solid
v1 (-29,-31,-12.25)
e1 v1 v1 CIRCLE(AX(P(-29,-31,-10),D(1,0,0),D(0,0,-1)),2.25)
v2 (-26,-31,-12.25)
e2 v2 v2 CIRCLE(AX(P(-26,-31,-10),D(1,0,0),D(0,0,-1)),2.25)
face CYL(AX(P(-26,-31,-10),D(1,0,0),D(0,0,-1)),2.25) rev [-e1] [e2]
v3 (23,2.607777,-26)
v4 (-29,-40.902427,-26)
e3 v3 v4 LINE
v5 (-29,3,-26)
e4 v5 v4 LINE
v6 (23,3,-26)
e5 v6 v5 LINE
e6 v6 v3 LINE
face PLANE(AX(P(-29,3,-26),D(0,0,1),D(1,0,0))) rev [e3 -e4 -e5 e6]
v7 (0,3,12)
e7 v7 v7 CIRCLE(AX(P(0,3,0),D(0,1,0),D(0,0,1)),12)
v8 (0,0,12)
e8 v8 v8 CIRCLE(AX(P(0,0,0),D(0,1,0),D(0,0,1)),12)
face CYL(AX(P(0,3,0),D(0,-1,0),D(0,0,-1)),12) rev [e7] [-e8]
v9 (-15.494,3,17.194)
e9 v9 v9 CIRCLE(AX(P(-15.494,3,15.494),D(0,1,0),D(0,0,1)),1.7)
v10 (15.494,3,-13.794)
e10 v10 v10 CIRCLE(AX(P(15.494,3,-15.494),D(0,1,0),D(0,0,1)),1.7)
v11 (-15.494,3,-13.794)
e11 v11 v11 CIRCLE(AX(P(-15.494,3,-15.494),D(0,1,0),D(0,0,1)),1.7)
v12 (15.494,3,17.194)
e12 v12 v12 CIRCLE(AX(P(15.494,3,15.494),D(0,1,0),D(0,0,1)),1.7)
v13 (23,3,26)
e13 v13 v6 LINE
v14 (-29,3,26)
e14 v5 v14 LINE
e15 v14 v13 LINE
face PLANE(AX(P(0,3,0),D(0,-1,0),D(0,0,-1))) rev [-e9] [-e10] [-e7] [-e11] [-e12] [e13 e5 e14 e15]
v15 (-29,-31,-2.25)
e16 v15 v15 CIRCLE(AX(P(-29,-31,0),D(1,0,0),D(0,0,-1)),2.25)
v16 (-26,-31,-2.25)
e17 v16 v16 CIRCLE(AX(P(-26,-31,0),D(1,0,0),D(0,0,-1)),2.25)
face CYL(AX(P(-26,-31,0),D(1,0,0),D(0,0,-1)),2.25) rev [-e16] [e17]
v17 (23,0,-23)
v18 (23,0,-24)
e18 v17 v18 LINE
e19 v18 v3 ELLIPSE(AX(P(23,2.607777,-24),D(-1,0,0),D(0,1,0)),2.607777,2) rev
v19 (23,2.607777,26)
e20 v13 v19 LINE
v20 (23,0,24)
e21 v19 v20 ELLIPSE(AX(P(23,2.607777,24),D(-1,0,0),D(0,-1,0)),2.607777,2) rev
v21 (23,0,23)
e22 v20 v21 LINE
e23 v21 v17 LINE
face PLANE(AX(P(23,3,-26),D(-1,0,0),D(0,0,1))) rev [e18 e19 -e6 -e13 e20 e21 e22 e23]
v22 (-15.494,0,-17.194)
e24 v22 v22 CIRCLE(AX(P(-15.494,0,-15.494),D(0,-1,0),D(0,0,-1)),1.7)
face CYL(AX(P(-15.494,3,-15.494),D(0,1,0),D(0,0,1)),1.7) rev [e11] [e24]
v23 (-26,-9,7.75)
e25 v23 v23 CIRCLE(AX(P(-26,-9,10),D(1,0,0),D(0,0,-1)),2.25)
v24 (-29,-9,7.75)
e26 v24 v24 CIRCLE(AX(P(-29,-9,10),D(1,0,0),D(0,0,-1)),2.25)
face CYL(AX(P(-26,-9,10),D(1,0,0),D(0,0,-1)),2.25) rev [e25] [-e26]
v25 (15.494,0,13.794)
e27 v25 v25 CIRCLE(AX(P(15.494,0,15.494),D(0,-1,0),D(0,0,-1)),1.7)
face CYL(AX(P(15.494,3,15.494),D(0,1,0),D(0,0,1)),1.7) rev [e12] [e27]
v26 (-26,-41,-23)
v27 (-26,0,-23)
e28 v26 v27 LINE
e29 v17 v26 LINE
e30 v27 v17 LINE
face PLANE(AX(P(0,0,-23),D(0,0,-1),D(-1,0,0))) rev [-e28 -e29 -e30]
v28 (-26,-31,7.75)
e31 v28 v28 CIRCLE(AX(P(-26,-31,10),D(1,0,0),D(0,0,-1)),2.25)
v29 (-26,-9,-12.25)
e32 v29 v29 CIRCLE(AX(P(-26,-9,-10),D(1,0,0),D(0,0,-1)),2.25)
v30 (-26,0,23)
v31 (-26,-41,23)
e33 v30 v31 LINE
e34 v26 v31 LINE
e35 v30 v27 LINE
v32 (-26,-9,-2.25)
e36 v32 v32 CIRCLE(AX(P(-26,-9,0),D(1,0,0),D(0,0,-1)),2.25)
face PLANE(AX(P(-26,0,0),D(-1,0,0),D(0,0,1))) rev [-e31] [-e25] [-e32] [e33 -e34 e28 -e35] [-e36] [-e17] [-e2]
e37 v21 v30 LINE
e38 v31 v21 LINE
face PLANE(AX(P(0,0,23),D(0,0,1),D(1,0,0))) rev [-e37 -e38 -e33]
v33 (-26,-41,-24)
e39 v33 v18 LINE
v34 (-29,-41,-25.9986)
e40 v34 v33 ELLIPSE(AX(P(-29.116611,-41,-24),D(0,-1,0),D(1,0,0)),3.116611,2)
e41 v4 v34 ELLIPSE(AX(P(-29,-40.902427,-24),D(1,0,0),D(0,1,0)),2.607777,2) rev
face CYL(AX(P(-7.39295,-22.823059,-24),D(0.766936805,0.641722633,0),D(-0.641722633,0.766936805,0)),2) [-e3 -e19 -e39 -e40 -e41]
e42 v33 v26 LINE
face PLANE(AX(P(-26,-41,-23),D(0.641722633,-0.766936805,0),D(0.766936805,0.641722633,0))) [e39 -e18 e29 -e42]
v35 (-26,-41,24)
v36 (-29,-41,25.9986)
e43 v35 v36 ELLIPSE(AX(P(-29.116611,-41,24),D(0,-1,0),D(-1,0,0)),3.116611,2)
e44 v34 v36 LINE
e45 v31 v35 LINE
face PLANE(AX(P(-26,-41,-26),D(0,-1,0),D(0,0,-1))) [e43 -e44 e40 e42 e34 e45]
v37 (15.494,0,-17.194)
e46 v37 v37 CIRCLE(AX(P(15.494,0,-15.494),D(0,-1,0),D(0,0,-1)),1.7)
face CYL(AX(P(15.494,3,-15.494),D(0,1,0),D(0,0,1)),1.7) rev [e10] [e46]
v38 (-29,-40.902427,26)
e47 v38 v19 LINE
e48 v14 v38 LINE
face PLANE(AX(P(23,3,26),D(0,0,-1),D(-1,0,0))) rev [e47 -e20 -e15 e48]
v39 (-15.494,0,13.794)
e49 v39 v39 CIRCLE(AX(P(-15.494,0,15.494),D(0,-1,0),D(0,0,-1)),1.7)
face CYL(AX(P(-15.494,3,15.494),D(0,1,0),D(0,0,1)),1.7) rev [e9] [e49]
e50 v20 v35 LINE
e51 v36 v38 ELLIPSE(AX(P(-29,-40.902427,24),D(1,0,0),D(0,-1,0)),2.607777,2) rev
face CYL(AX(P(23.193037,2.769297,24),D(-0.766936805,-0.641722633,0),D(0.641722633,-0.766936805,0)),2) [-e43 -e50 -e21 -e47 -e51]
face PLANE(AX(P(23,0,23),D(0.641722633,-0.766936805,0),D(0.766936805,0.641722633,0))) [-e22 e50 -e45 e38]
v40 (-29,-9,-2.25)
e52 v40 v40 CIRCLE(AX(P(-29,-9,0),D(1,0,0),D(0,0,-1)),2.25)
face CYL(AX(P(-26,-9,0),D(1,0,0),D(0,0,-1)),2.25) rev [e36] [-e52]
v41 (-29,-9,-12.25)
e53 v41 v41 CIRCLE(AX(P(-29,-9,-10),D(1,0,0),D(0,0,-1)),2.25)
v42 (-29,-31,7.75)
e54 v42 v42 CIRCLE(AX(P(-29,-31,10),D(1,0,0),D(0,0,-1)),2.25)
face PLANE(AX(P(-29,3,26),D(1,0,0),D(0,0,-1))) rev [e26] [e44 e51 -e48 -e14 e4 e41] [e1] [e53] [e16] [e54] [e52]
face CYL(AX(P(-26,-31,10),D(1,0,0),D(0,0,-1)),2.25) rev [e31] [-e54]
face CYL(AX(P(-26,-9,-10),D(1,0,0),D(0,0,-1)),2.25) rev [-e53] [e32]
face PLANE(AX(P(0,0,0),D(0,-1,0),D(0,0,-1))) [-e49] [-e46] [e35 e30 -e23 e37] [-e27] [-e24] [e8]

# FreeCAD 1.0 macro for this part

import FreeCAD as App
import Part
import Sketcher

V = App.Vector


def edges_at(feature, points):
    """Names of the edges that pass closest to the given points."""
    edges = feature.Shape.Edges
    near = lambda p: min(range(len(edges)), key=lambda i: edges[i].distToShape(Part.Vertex(*p))[0])
    return sorted({f"Edge{near(p) + 1}" for p in points})


def add_polygon(sketch, points):
    """Adds a closed chain of lines whose ends are joined by coincident constraints."""
    first, n = sketch.GeometryCount, len(points)
    for a, b in zip(points, points[1:] + points[:1]):
        sketch.addGeometry(Part.LineSegment(App.Vector(*a, 0), App.Vector(*b, 0)), False)
    for i in range(n):
        sketch.addConstraint(Sketcher.Constraint("Coincident", first + i, 2, first + (i + 1) % n, 1))

doc = App.newDocument("Part")
body = doc.addObject("PartDesign::Body", "Body")

sketch1 = doc.addObject("Sketcher::SketchObject", "Sketch")
body.addObject(sketch1)
sketch1.AttachmentSupport = (doc.XZ_Plane, [""])
sketch1.MapMode = "FlatFace"
add_polygon(sketch1, [(-29, -26), (-29, 26), (23, 26), (23, -26)])
sketch1.addGeometry(Part.Circle(V(0, 0, 0), V(0, 0, 1), 12), False)
sketch1.addConstraint([
    Sketcher.Constraint("Vertical", 0),
    Sketcher.Constraint("Horizontal", 1),
    Sketcher.Constraint("Vertical", 2),
    Sketcher.Constraint("Horizontal", 3),
    Sketcher.Constraint("Coincident", 4, 3, -1, 1),
    Sketcher.Constraint("Equal", 3, 0),
    Sketcher.Constraint("Diameter", 4, 24.0),
    Sketcher.Constraint("DistanceX", 1, 1, 1, 2, 52.0),
    Sketcher.Constraint("DistanceX", 0, 2, -1, 1, 29.0),
    Sketcher.Constraint("DistanceY", -1, 1, 0, 2, 26.0),
])
pad1 = doc.addObject("PartDesign::Pad", "Pad")
body.addObject(pad1)
pad1.Profile = sketch1
pad1.Length = 3
pad1.Reversed = True

sketch2 = doc.addObject("Sketcher::SketchObject", "Sketch001")
body.addObject(sketch2)
sketch2.AttachmentSupport = (doc.YZ_Plane, [""])
sketch2.MapMode = "FlatFace"
sketch2.AttachmentOffset = App.Placement(V(0, 0, -29), App.Rotation())
add_polygon(sketch2, [(0, -26), (-41, -26), (-41, 26), (0, 26)])
sketch2.addConstraint([
    Sketcher.Constraint("Horizontal", 0),
    Sketcher.Constraint("Vertical", 1),
    Sketcher.Constraint("Horizontal", 2),
    Sketcher.Constraint("Vertical", 3),
    Sketcher.Constraint("Symmetric", 2, 2, 3, 2, -1, 1),
    Sketcher.Constraint("DistanceX", 0, 2, 0, 1, 41.0),
    Sketcher.Constraint("DistanceY", 1, 1, 1, 2, 52.0),
])
pad2 = doc.addObject("PartDesign::Pad", "Pad001")
body.addObject(pad2)
pad2.Profile = sketch2
pad2.Length = 3

sketch3 = doc.addObject("Sketcher::SketchObject", "Sketch002")
body.addObject(sketch3)
sketch3.AttachmentSupport = (doc.XZ_Plane, [""])
sketch3.MapMode = "FlatFace"
sketch3.AttachmentOffset = App.Placement(V(0, 0, -3), App.Rotation())
sketch3.addGeometry([
    Part.Circle(V(15.5, 15.5, 0), V(0, 0, 1), 1.7),
    Part.Circle(V(-15.5, 15.5, 0), V(0, 0, 1), 1.7),
    Part.Circle(V(-15.5, -15.5, 0), V(0, 0, 1), 1.7),
    Part.Circle(V(15.5, -15.5, 0), V(0, 0, 1), 1.7),
], False)
sketch3.addConstraint([
    Sketcher.Constraint("Equal", 0, 1),
    Sketcher.Constraint("Equal", 1, 2),
    Sketcher.Constraint("Equal", 2, 3),
    Sketcher.Constraint("Symmetric", 0, 3, 2, 3, -1, 1),
    Sketcher.Constraint("Symmetric", 1, 3, 3, 3, -1, 1),
    Sketcher.Constraint("Symmetric", 0, 3, 1, 3, -2),
    Sketcher.Constraint("Diameter", 0, 3.4),
    Sketcher.Constraint("DistanceX", -1, 1, 0, 3, 15.494),
    Sketcher.Constraint("DistanceY", -1, 1, 0, 3, 15.494),
])
doc.recompute()
hole = doc.addObject("PartDesign::Hole", "Hole")
body.addObject(hole)
hole.Profile = sketch3
hole.ThreadType = "None"
hole.Diameter = 3.4
hole.DepthType = "ThroughAll"
hole.Reversed = True

sketch4 = doc.addObject("Sketcher::SketchObject", "Sketch003")
body.addObject(sketch4)
sketch4.AttachmentSupport = (doc.YZ_Plane, [""])
sketch4.MapMode = "FlatFace"
sketch4.AttachmentOffset = App.Placement(V(0, 0, -26), App.Rotation())
sketch4.addGeometry([
    Part.Circle(V(-9, 10, 0), V(0, 0, 1), 2.2),
    Part.Circle(V(-9, -10, 0), V(0, 0, 1), 2.2),
    Part.Circle(V(-31, -10, 0), V(0, 0, 1), 2.2),
    Part.Circle(V(-31, 10, 0), V(0, 0, 1), 2.2),
    Part.Circle(V(-9, 0, 0), V(0, 0, 1), 2.2),
    Part.Circle(V(-31, 0, 0), V(0, 0, 1), 2.2),
], False)
sketch4.addConstraint([
    Sketcher.Constraint("Equal", 0, 1),
    Sketcher.Constraint("Equal", 1, 2),
    Sketcher.Constraint("Equal", 2, 3),
    Sketcher.Constraint("Equal", 3, 4),
    Sketcher.Constraint("Equal", 4, 5),
    Sketcher.Constraint("Symmetric", 0, 3, 1, 3, -1),
    Sketcher.Constraint("Symmetric", 2, 3, 3, 3, -1),
    Sketcher.Constraint("PointOnObject", 4, 3, -1),
    Sketcher.Constraint("PointOnObject", 5, 3, -1),
    Sketcher.Constraint("Horizontal", 1, 3, 2, 3),
    Sketcher.Constraint("Vertical", 1, 3, 4, 3),
    Sketcher.Constraint("Vertical", 3, 3, 5, 3),
    Sketcher.Constraint("Diameter", 0, 4.5),
    Sketcher.Constraint("DistanceX", 0, 3, -1, 1, 9.0),
    Sketcher.Constraint("DistanceY", -1, 1, 0, 3, 10.0),
    Sketcher.Constraint("DistanceX", 2, 3, -1, 1, 31.0),
])
doc.recompute()
hole2 = doc.addObject("PartDesign::Hole", "Hole001")
body.addObject(hole2)
hole2.Profile = sketch4
hole2.ThreadType = "None"
hole2.Diameter = 4.5
hole2.DepthType = "ThroughAll"

sketch5 = doc.addObject("Sketcher::SketchObject", "Sketch004")
body.addObject(sketch5)
sketch5.AttachmentSupport = (doc.XY_Plane, [""])
sketch5.MapMode = "FlatFace"
sketch5.AttachmentOffset = App.Placement(V(0, 0, -26), App.Rotation())
add_polygon(sketch5, [(23, 0), (-26, -41), (-26, 0)])
sketch5.addConstraint([
    Sketcher.Constraint("Vertical", 1),
    Sketcher.Constraint("Horizontal", 2),
    Sketcher.Constraint("PointOnObject", 1, 2, -1),
    Sketcher.Constraint("DistanceX", 2, 1, 2, 2, 49.0),
    Sketcher.Constraint("DistanceY", 1, 1, 1, 2, 41.0),
    Sketcher.Constraint("DistanceX", 0, 2, -1, 1, 26.0),
])
pad3 = doc.addObject("PartDesign::Pad", "Pad002")
body.addObject(pad3)
pad3.Profile = sketch5
pad3.Length = 3

sketch6 = doc.addObject("Sketcher::SketchObject", "Sketch005")
body.addObject(sketch6)
sketch6.AttachmentSupport = (doc.XY_Plane, [""])
sketch6.MapMode = "FlatFace"
sketch6.AttachmentOffset = App.Placement(V(0, 0, 26), App.Rotation())
add_polygon(sketch6, [(-26, -41), (23, 0), (-26, 0)])
sketch6.addConstraint([
    Sketcher.Constraint("Horizontal", 1),
    Sketcher.Constraint("Vertical", 2),
    Sketcher.Constraint("PointOnObject", 0, 2, -1),
    Sketcher.Constraint("DistanceX", 1, 2, 1, 1, 49.0),
    Sketcher.Constraint("DistanceY", 2, 2, 2, 1, 41.0),
    Sketcher.Constraint("DistanceX", -1, 1, 0, 2, 23.0),
])
pad4 = doc.addObject("PartDesign::Pad", "Pad003")
body.addObject(pad4)
pad4.Profile = sketch6
pad4.Length = 3
pad4.Reversed = True
doc.recompute()

fillet = doc.addObject("PartDesign::Fillet", "Fillet")
body.addObject(fillet)
fillet.Base = (pad4, edges_at(pad4, [(-1.5, -20.5, 26), (-1.5, -20.5, -26)]))
fillet.Radius = 2

doc.recompute()
